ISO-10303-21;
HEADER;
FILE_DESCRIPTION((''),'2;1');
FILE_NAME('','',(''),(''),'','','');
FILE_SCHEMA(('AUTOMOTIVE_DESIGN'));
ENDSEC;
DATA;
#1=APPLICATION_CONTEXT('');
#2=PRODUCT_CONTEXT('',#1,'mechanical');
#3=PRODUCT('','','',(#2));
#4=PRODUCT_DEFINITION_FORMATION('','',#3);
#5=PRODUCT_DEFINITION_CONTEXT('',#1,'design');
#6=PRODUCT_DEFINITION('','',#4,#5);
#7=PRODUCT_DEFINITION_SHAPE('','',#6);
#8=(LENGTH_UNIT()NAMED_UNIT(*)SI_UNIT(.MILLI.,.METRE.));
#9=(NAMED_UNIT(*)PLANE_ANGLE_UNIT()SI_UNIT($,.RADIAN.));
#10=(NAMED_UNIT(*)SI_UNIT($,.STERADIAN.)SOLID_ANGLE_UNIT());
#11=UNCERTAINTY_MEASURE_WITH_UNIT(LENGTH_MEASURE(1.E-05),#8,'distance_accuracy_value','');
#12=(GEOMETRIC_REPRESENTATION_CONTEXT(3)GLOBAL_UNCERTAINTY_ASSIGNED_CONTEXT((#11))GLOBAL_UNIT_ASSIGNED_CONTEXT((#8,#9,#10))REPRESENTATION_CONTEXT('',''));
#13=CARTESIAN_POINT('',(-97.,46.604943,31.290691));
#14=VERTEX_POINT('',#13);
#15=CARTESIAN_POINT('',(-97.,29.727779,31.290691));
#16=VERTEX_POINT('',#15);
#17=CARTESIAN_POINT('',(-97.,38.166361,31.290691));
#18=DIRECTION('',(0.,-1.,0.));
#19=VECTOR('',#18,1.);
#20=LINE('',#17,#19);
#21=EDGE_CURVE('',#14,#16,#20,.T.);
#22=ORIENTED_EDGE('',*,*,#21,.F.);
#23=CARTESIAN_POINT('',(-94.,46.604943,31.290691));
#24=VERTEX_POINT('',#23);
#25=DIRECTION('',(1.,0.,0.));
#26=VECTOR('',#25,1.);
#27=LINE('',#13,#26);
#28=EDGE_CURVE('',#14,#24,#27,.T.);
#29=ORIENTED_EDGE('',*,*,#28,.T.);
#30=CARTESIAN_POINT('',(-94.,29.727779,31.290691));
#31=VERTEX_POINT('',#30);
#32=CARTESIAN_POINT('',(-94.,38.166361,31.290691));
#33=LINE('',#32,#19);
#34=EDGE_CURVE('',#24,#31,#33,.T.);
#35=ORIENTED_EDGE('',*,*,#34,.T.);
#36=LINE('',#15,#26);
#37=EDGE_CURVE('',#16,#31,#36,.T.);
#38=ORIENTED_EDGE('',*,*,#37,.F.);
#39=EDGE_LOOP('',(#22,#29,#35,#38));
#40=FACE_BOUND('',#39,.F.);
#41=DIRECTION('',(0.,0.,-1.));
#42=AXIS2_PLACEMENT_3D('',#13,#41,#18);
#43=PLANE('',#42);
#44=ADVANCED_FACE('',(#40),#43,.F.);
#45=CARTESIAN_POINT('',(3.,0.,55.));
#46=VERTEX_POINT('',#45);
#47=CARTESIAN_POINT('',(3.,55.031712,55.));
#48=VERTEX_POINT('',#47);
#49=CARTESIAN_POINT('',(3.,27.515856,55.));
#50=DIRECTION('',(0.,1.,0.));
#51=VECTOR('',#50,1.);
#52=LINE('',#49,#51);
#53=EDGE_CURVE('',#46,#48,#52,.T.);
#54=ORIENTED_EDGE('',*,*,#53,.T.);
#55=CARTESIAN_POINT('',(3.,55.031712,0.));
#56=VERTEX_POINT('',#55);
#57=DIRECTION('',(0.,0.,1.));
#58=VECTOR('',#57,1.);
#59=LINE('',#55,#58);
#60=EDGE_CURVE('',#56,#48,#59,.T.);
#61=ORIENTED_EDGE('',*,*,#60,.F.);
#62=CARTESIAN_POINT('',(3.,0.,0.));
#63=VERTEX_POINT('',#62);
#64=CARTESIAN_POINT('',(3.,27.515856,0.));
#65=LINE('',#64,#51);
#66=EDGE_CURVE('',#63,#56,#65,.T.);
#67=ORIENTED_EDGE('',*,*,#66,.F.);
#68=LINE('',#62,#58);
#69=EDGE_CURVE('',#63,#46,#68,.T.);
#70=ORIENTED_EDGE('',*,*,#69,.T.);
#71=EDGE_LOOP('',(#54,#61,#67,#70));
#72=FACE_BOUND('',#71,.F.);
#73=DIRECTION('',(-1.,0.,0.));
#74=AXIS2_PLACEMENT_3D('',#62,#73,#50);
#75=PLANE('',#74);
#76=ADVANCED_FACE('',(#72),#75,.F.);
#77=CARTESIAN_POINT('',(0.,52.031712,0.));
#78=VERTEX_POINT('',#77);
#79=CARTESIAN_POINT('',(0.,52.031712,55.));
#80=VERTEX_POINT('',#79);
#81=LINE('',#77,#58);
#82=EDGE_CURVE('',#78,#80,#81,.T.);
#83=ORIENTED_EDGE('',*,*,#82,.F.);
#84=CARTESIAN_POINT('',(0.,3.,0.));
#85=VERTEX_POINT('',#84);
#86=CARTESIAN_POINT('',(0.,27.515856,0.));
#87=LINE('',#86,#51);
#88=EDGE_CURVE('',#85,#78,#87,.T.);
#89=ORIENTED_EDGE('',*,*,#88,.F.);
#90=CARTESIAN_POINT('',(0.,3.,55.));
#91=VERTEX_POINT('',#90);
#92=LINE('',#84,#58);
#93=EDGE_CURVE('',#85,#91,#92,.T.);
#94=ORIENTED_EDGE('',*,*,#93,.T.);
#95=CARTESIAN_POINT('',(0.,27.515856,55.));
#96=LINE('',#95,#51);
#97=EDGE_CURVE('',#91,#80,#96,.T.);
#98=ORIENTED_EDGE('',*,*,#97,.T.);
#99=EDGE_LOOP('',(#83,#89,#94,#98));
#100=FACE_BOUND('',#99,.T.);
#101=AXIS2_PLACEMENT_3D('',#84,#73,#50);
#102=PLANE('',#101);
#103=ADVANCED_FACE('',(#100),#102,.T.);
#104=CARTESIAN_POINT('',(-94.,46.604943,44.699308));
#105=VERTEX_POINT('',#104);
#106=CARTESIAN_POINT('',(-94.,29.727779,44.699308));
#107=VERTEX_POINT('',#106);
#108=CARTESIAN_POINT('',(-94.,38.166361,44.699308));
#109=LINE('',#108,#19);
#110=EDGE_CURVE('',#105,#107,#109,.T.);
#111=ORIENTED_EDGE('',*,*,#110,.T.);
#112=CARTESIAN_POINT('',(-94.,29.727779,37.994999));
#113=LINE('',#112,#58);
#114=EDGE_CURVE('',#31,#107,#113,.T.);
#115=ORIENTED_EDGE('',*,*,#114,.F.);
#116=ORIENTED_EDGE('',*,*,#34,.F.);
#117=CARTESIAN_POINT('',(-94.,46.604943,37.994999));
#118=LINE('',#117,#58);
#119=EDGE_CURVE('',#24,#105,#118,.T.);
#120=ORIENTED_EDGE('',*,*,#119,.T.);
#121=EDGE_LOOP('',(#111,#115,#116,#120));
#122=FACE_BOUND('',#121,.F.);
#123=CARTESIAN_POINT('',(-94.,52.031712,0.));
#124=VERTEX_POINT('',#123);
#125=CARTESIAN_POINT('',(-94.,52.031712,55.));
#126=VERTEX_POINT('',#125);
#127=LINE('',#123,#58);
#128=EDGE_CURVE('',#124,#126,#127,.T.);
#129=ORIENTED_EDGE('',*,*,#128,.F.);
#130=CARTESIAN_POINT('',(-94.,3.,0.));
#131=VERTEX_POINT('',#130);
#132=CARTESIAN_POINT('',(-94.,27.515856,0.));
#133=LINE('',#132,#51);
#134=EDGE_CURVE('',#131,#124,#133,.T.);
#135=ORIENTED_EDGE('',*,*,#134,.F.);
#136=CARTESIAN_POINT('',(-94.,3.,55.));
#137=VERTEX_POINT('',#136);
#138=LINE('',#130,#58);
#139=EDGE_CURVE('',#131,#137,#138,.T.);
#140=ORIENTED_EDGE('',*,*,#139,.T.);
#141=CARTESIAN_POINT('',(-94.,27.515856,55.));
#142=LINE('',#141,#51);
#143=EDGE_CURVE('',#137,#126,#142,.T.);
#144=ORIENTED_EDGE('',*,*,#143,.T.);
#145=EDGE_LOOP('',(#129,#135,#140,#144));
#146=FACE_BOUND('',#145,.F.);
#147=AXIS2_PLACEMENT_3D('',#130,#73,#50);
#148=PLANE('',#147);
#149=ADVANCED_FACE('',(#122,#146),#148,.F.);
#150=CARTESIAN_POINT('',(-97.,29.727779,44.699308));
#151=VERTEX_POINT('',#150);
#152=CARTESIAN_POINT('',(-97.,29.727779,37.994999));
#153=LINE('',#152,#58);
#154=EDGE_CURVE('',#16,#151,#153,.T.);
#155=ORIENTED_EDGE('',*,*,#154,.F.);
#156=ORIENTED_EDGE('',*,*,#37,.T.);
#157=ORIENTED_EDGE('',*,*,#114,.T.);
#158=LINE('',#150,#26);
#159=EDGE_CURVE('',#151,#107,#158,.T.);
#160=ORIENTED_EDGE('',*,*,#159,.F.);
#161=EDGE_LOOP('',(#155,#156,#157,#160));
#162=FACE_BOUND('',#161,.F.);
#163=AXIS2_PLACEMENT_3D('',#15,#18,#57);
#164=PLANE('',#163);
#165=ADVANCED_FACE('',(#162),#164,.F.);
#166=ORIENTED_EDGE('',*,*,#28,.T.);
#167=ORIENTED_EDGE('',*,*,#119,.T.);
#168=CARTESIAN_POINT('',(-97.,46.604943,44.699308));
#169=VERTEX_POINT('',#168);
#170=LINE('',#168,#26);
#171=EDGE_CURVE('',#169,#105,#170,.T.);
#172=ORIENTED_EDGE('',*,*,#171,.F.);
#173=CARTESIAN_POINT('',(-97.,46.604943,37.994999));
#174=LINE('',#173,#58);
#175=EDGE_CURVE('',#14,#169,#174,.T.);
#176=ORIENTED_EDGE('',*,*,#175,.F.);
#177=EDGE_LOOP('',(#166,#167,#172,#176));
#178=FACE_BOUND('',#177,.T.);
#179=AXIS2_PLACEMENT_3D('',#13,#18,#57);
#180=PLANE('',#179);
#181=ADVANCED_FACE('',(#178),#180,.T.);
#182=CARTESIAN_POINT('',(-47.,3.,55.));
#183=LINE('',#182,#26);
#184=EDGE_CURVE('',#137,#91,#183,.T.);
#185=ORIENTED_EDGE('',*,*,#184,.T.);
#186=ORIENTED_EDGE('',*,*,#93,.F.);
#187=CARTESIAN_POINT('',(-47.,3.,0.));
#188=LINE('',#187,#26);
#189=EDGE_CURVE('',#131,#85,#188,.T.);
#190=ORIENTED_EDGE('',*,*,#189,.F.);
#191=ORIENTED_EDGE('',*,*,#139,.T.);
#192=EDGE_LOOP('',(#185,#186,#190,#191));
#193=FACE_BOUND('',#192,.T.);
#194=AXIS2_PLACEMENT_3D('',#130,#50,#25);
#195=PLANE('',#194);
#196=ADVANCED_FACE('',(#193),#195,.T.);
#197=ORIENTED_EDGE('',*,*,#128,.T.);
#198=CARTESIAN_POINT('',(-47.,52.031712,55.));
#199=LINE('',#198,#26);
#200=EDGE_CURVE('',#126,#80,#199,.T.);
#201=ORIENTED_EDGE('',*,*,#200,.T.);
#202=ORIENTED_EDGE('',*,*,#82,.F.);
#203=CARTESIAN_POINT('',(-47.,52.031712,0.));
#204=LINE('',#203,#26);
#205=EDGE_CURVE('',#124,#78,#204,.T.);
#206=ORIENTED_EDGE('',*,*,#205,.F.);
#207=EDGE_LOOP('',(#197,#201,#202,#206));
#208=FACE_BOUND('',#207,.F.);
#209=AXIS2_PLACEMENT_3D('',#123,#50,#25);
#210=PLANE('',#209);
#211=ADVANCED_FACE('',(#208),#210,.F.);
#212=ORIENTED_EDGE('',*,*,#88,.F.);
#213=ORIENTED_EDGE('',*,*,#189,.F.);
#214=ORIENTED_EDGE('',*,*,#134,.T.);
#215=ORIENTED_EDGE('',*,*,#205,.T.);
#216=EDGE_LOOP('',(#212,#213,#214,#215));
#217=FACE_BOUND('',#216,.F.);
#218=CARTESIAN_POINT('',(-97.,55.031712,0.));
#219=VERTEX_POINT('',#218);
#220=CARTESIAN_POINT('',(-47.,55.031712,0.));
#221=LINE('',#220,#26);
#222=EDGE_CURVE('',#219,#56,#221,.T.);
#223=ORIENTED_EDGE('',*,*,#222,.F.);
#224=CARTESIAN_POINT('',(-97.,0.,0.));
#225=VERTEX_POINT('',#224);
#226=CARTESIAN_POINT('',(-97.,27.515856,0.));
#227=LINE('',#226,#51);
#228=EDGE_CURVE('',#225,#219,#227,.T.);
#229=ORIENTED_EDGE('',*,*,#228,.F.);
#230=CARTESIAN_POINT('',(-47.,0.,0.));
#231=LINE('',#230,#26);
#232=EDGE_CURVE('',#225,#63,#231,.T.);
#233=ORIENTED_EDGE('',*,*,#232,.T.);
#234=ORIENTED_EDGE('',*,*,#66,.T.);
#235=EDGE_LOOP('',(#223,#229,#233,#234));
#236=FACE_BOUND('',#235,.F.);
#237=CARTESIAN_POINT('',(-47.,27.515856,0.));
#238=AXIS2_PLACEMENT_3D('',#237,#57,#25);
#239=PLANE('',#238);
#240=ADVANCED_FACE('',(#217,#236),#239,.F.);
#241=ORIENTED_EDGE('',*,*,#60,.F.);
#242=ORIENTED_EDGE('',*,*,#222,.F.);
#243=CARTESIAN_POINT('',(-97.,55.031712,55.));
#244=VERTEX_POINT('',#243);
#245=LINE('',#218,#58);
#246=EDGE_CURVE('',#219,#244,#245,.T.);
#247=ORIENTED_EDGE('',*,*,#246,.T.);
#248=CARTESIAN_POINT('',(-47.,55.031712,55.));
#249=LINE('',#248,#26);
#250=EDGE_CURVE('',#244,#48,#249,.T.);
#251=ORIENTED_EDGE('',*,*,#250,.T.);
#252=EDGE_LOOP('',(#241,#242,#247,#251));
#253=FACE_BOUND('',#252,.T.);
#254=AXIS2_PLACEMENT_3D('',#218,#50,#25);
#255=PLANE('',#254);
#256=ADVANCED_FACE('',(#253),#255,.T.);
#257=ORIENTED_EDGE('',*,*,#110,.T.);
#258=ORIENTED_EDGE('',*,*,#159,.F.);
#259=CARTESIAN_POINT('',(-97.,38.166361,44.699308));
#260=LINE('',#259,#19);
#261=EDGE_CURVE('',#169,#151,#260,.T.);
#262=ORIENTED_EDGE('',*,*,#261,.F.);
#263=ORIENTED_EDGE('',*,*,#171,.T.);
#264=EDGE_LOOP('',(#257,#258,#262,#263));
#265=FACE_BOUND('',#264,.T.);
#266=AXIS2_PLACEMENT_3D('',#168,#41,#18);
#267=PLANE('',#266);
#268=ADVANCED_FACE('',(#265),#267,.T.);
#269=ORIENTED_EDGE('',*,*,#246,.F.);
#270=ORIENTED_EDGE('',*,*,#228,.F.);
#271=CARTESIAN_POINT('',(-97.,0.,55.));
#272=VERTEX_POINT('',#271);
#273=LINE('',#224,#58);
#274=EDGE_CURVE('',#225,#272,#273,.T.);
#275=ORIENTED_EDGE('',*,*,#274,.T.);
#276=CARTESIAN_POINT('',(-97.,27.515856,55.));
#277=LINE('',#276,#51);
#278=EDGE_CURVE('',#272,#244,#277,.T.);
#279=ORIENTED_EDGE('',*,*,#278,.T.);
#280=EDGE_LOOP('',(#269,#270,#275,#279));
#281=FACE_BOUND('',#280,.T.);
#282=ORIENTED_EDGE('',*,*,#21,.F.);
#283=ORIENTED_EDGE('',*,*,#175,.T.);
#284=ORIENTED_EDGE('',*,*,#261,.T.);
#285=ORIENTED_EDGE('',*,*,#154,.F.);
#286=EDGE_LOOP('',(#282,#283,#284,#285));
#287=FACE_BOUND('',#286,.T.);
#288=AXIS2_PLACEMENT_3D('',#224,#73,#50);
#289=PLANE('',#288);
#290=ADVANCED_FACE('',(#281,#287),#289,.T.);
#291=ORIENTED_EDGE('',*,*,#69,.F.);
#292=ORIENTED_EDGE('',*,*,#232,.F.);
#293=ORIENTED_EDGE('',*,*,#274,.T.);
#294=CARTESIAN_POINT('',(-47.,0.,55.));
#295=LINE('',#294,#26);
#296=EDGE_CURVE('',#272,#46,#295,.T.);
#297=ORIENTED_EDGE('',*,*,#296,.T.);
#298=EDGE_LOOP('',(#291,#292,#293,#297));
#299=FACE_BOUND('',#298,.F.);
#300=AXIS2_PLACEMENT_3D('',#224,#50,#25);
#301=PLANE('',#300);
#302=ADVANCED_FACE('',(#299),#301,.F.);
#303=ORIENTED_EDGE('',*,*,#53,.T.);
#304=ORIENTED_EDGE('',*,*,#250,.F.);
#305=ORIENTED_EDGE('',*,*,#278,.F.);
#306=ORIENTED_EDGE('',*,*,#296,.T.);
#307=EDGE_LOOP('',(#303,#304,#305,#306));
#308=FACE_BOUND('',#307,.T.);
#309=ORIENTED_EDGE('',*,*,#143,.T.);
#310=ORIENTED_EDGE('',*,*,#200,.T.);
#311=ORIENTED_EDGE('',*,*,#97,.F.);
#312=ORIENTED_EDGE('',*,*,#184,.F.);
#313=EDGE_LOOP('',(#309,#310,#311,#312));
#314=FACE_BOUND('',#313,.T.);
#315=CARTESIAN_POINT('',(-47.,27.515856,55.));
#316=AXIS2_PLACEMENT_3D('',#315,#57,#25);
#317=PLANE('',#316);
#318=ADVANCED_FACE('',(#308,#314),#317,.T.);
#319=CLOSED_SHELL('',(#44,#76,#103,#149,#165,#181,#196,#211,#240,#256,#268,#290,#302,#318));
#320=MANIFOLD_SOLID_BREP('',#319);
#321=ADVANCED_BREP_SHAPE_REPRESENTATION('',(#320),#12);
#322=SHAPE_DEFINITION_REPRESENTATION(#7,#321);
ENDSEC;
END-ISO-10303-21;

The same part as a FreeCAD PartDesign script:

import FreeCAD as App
import Part
import Sketcher
from FreeCAD import Vector


def add_polygon(sketch, points):
    """Adds a closed chain of lines whose ends are joined by coincident constraints."""
    first, n = sketch.GeometryCount, len(points)
    for a, b in zip(points, points[1:] + points[:1]):
        sketch.addGeometry(Part.LineSegment(App.Vector(*a, 0), App.Vector(*b, 0)), False)
    for i in range(n):
        sketch.addConstraint(Sketcher.Constraint("Coincident", first + i, 2, first + (i + 1) % n, 1))

doc = App.newDocument("Part")
body = doc.addObject("PartDesign::Body", "Body")

sketch1 = body.newObject("Sketcher::SketchObject", "Sketch")
sketch1.AttachmentSupport = (doc.getObject("XY_Plane"), [""])
sketch1.MapMode = "FlatFace"
add_polygon(sketch1, [(-97, 55.031712), (-97, 0), (3, 0), (3, 55.031712)])
add_polygon(sketch1, [(0, 3), (-94, 3), (-94, 52.031712), (0, 52.031712)])
sketch1.addConstraint([
    Sketcher.Constraint("Vertical", 0),
    Sketcher.Constraint("Horizontal", 1),
    Sketcher.Constraint("Vertical", 2),
    Sketcher.Constraint("Horizontal", 3),
    Sketcher.Constraint("Horizontal", 4),
    Sketcher.Constraint("Vertical", 5),
    Sketcher.Constraint("Horizontal", 6),
    Sketcher.Constraint("Vertical", 7),
    Sketcher.Constraint("PointOnObject", 0, 2, -1),
    Sketcher.Constraint("PointOnObject", 6, 2, -2),
    Sketcher.Constraint("DistanceX", 1, 1, 1, 2, 100.0),
    Sketcher.Constraint("DistanceX", 4, 2, 4, 1, 94.0),
    Sketcher.Constraint("DistanceX", 0, 2, -1, 1, 97.0),
    Sketcher.Constraint("DistanceY", -1, 1, 4, 2, 3.0),
    Sketcher.Constraint("DistanceY", 5, 2, 3, 2, 3.0),
    Sketcher.Constraint("DistanceY", 0, 2, 0, 1, 55.031712),
])
pad1 = body.newObject("PartDesign::Pad", "Pad")
pad1.Profile = sketch1
pad1.Length = 55

sketch2 = body.newObject("Sketcher::SketchObject", "Sketch001")
sketch2.AttachmentSupport = (doc.getObject("YZ_Plane"), [""])
sketch2.MapMode = "FlatFace"
sketch2.AttachmentOffset = App.Placement(Vector(0, 0, -97), App.Rotation())
add_polygon(sketch2, [(46.604943, 44.699308), (46.604943, 31.290691), (29.727779, 31.290691), (29.727779, 44.699308)])
sketch2.addConstraint([
    Sketcher.Constraint("Vertical", 0),
    Sketcher.Constraint("Horizontal", 1),
    Sketcher.Constraint("Vertical", 2),
    Sketcher.Constraint("Horizontal", 3),
    Sketcher.Constraint("DistanceX", 1, 2, 1, 1, 16.877164),
    Sketcher.Constraint("DistanceY", 0, 2, 0, 1, 13.408617),
    Sketcher.Constraint("DistanceY", -1, 1, 0, 2, 31.290691),
    Sketcher.Constraint("DistanceX", -1, 1, 1, 2, 29.727779),
])
pocket1 = body.newObject("PartDesign::Pocket", "Pocket")
pocket1.Profile = sketch2
pocket1.Length = 3
pocket1.Reversed = True

doc.recompute()
